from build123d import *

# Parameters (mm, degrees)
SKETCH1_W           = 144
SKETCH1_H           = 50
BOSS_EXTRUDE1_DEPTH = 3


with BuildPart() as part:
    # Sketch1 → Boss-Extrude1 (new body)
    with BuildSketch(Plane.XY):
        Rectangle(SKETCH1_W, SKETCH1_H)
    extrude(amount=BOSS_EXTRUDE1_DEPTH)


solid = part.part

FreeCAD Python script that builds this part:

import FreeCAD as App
import Part
import Sketcher
Q = App.Units.Quantity


def add_polygon(sketch, points):
    """Adds a closed chain of lines whose ends are joined by coincident constraints."""
    first, n = sketch.GeometryCount, len(points)
    for a, b in zip(points, points[1:] + points[:1]):
        sketch.addGeometry(Part.LineSegment(App.Vector(*a, 0), App.Vector(*b, 0)), False)
    for i in range(n):
        sketch.addConstraint(Sketcher.Constraint("Coincident", first + i, 2, first + (i + 1) % n, 1))

doc = App.newDocument("Part")
body = doc.addObject("PartDesign::Body", "Body")

# Sketch on XY plane
sketch1 = doc.addObject("Sketcher::SketchObject", "Sketch")
body.addObject(sketch1)
sketch1.AttachmentSupport = (doc.XY_Plane, [""])
sketch1.MapMode = "FlatFace"
add_polygon(sketch1, [(-72, 25), (-72, -25), (72, -25), (72, 25)])  # lines 0-3
sketch1.addConstraint(Sketcher.Constraint("Vertical", 0))
sketch1.addConstraint(Sketcher.Constraint("Horizontal", 1))
sketch1.addConstraint(Sketcher.Constraint("Vertical", 2))
sketch1.addConstraint(Sketcher.Constraint("Horizontal", 3))
sketch1.addConstraint(Sketcher.Constraint("Symmetric", 0, 2, 2, 2, -1, 1))
sketch1.addConstraint(Sketcher.Constraint("DistanceX", 1, 1, 1, 2, Q("144 mm")))
sketch1.addConstraint(Sketcher.Constraint("DistanceY", 0, 2, 0, 1, Q("50 mm")))
pad1 = doc.addObject("PartDesign::Pad", "Pad")
body.addObject(pad1)
pad1.Profile = sketch1
pad1.Length = 3

doc.recompute()
